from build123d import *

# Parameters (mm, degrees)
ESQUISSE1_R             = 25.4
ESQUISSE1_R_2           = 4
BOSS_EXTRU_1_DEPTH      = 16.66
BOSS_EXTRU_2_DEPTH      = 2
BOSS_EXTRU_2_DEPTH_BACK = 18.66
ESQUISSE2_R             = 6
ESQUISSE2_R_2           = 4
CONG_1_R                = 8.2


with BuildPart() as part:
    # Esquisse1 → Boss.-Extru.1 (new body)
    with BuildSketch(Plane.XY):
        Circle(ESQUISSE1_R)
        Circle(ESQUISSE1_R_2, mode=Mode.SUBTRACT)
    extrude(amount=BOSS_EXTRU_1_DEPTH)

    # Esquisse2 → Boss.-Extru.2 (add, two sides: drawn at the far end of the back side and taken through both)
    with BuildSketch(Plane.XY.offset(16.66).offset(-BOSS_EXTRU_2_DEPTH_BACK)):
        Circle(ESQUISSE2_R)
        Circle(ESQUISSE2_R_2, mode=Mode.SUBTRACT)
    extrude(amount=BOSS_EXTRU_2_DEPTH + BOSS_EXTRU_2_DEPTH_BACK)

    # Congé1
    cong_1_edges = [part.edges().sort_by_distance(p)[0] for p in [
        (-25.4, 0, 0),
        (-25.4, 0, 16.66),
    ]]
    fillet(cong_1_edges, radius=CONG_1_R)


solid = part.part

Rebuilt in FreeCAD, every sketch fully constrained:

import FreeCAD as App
import Part
import Sketcher
from FreeCAD import Vector


def edges_at(feature, points):
    """Names of the edges that pass closest to the given points."""
    edges = feature.Shape.Edges
    near = lambda p: min(range(len(edges)), key=lambda i: edges[i].distToShape(Part.Vertex(*p))[0])
    return sorted({f"Edge{near(p) + 1}" for p in points})

doc = App.newDocument("Part")
params = doc.addObject("Spreadsheet::Sheet", "Params")
for row, (alias, value) in enumerate([
    ("sketch1_diameter", "8 mm"),
    ("sketch1_diameter2", "50.8 mm"),
    ("pad1_length", "16.66 mm"),
    ("sketch2_diameter", "12 mm"),
    ("sketch2_diameter2", "8 mm"),
    ("pad2_length", "2 mm"),
    ("pad2_length2", "18.66 mm"),
    ("fillet_radius", "8.2 mm"),
], start=1):
    params.set(f"A{row}", alias)
    params.set(f"B{row}", "=" + value)
    params.setAlias(f"B{row}", alias)

body = doc.addObject("PartDesign::Body", "Body")

# Sketch on XY plane
sketch1 = body.newObject("Sketcher::SketchObject", "Sketch")
sketch1.AttachmentSupport = (doc.getObject("XY_Plane"), [""])
sketch1.MapMode = "FlatFace"
sketch1.addGeometry([
    Part.Circle(Vector(0, 0, 0), Vector(0, 0, 1), 25.4),
    Part.Circle(Vector(0, 0, 0), Vector(0, 0, 1), 4),
], False)
sketch1.addConstraint([
    Sketcher.Constraint("Coincident", 0, 3, -1, 1),
    Sketcher.Constraint("Coincident", 1, 3, -1, 1),
    Sketcher.Constraint("Diameter", 1, 8.0),
    Sketcher.Constraint("Diameter", 0, 50.8),
])
sketch1.setExpression("Constraints[2]", "Params.sketch1_diameter")
sketch1.setExpression("Constraints[3]", "Params.sketch1_diameter2")
pad1 = body.newObject("PartDesign::Pad", "Pad")
pad1.Profile = sketch1
pad1.setExpression("Length", "Params.pad1_length")

# Sketch on XY plane
sketch2 = body.newObject("Sketcher::SketchObject", "Sketch001")
sketch2.AttachmentSupport = (doc.getObject("XY_Plane"), [""])
sketch2.MapMode = "FlatFace"
sketch2.AttachmentOffset = App.Placement(Vector(0, 0, 16.66), App.Rotation())
sketch2.addGeometry([
    Part.Circle(Vector(0, 0, 0), Vector(0, 0, 1), 6),
    Part.Circle(Vector(0, 0, 0), Vector(0, 0, 1), 4),
], False)
sketch2.addConstraint([
    Sketcher.Constraint("Coincident", 0, 3, -1, 1),
    Sketcher.Constraint("Coincident", 1, 3, -1, 1),
    Sketcher.Constraint("Diameter", 0, 12.0),
    Sketcher.Constraint("Diameter", 1, 8.0),
])
sketch2.setExpression("Constraints[2]", "Params.sketch2_diameter")
sketch2.setExpression("Constraints[3]", "Params.sketch2_diameter2")
pad2 = body.newObject("PartDesign::Pad", "Pad001")
pad2.Profile = sketch2
pad2.Type = "TwoLengths"
pad2.setExpression("Length", "Params.pad2_length")
pad2.setExpression("Length2", "Params.pad2_length2")
doc.recompute()

fillet = body.newObject("PartDesign::Fillet", "Fillet")
fillet.Base = (pad2, edges_at(pad2, [(-25.4, 0, 0), (-25.4, 0, 16.66)]))
fillet.setExpression("Radius", "Params.fillet_radius")

doc.recompute()
